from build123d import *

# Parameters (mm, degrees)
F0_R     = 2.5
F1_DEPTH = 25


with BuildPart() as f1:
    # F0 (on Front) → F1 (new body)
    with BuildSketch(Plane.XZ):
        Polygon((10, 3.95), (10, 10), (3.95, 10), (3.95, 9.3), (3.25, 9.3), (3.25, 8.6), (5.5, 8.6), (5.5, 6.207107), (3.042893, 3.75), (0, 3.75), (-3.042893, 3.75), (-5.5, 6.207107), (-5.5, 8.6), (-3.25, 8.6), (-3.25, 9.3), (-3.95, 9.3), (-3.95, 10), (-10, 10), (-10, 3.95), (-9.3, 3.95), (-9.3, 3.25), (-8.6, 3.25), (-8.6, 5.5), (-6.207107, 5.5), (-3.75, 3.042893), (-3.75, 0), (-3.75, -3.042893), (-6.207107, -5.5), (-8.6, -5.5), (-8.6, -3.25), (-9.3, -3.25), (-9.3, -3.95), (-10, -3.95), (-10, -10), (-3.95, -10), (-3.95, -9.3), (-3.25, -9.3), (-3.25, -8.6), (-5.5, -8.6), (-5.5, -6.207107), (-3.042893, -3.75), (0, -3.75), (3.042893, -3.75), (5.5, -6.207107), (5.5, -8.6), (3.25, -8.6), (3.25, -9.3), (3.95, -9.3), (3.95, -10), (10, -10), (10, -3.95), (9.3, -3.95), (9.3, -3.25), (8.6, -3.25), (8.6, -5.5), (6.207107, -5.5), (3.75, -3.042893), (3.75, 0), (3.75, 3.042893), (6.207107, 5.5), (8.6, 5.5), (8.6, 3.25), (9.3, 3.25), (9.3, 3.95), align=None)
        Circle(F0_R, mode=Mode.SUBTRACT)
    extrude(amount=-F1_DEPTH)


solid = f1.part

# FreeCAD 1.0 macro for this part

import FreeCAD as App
import Part
import Sketcher
from FreeCAD import Vector

doc = App.newDocument("Part")
body = doc.addObject("PartDesign::Body", "Body")

# Sketch on XZ plane
sketch1 = body.newObject("Sketcher::SketchObject", "Sketch")
sketch1.AttachmentSupport = (doc.getObject("XZ_Plane"), [""])
sketch1.MapMode = "FlatFace"
sketch1.addGeometry(Part.LineSegment(Vector(10, 4, 0), Vector(10, 10, 0)), False)
sketch1.addGeometry(Part.LineSegment(Vector(10, 10, 0), Vector(4, 10, 0)), False)
sketch1.addGeometry(Part.LineSegment(Vector(4, 10, 0), Vector(4, 9.3, 0)), False)
sketch1.addGeometry(Part.LineSegment(Vector(4, 9.3, 0), Vector(3.2, 9.3, 0)), False)
sketch1.addGeometry(Part.LineSegment(Vector(3.2, 9.3, 0), Vector(3.2, 8.6, 0)), False)
sketch1.addGeometry(Part.LineSegment(Vector(3.2, 8.6, 0), Vector(5.5, 8.6, 0)), False)
sketch1.addGeometry(Part.LineSegment(Vector(5.5, 8.6, 0), Vector(5.5, 6.2, 0)), False)
sketch1.addGeometry(Part.LineSegment(Vector(5.5, 6.2, 0), Vector(3, 3.8, 0)), False)
sketch1.addGeometry(Part.LineSegment(Vector(3, 3.8, 0), Vector(-3, 3.8, 0)), False)
sketch1.addGeometry(Part.LineSegment(Vector(-3, 3.8, 0), Vector(-5.5, 6.2, 0)), False)
sketch1.addGeometry(Part.LineSegment(Vector(-5.5, 6.2, 0), Vector(-5.5, 8.6, 0)), False)
sketch1.addGeometry(Part.LineSegment(Vector(-5.5, 8.6, 0), Vector(-3.2, 8.6, 0)), False)
sketch1.addGeometry(Part.LineSegment(Vector(-3.2, 8.6, 0), Vector(-3.2, 9.3, 0)), False)
sketch1.addGeometry(Part.LineSegment(Vector(-3.2, 9.3, 0), Vector(-4, 9.3, 0)), False)
sketch1.addGeometry(Part.LineSegment(Vector(-4, 9.3, 0), Vector(-4, 10, 0)), False)
sketch1.addGeometry(Part.LineSegment(Vector(-4, 10, 0), Vector(-10, 10, 0)), False)
sketch1.addGeometry(Part.LineSegment(Vector(-10, 10, 0), Vector(-10, 4, 0)), False)
sketch1.addGeometry(Part.LineSegment(Vector(-10, 4, 0), Vector(-9.3, 4, 0)), False)
sketch1.addGeometry(Part.LineSegment(Vector(-9.3, 4, 0), Vector(-9.3, 3.2, 0)), False)
sketch1.addGeometry(Part.LineSegment(Vector(-9.3, 3.2, 0), Vector(-8.6, 3.2, 0)), False)
sketch1.addGeometry(Part.LineSegment(Vector(-8.6, 3.2, 0), Vector(-8.6, 5.5, 0)), False)
sketch1.addGeometry(Part.LineSegment(Vector(-8.6, 5.5, 0), Vector(-6.2, 5.5, 0)), False)
sketch1.addGeometry(Part.LineSegment(Vector(-6.2, 5.5, 0), Vector(-3.8, 3, 0)), False)
sketch1.addGeometry(Part.LineSegment(Vector(-3.8, 3, 0), Vector(-3.8, -3, 0)), False)
sketch1.addGeometry(Part.LineSegment(Vector(-3.8, -3, 0), Vector(-6.2, -5.5, 0)), False)
sketch1.addGeometry(Part.LineSegment(Vector(-6.2, -5.5, 0), Vector(-8.6, -5.5, 0)), False)
sketch1.addGeometry(Part.LineSegment(Vector(-8.6, -5.5, 0), Vector(-8.6, -3.2, 0)), False)
sketch1.addGeometry(Part.LineSegment(Vector(-8.6, -3.2, 0), Vector(-9.3, -3.2, 0)), False)
sketch1.addGeometry(Part.LineSegment(Vector(-9.3, -3.2, 0), Vector(-9.3, -4, 0)), False)
sketch1.addGeometry(Part.LineSegment(Vector(-9.3, -4, 0), Vector(-10, -4, 0)), False)
sketch1.addGeometry(Part.LineSegment(Vector(-10, -4, 0), Vector(-10, -10, 0)), False)
sketch1.addGeometry(Part.LineSegment(Vector(-10, -10, 0), Vector(-4, -10, 0)), False)
sketch1.addGeometry(Part.LineSegment(Vector(-4, -10, 0), Vector(-4, -9.3, 0)), False)
sketch1.addGeometry(Part.LineSegment(Vector(-4, -9.3, 0), Vector(-3.2, -9.3, 0)), False)
sketch1.addGeometry(Part.LineSegment(Vector(-3.2, -9.3, 0), Vector(-3.2, -8.6, 0)), False)
sketch1.addGeometry(Part.LineSegment(Vector(-3.2, -8.6, 0), Vector(-5.5, -8.6, 0)), False)
sketch1.addGeometry(Part.LineSegment(Vector(-5.5, -8.6, 0), Vector(-5.5, -6.2, 0)), False)
sketch1.addGeometry(Part.LineSegment(Vector(-5.5, -6.2, 0), Vector(-3, -3.8, 0)), False)
sketch1.addGeometry(Part.LineSegment(Vector(-3, -3.8, 0), Vector(3, -3.8, 0)), False)
sketch1.addGeometry(Part.LineSegment(Vector(3, -3.8, 0), Vector(5.5, -6.2, 0)), False)
sketch1.addGeometry(Part.LineSegment(Vector(5.5, -6.2, 0), Vector(5.5, -8.6, 0)), False)
sketch1.addGeometry(Part.LineSegment(Vector(5.5, -8.6, 0), Vector(3.2, -8.6, 0)), False)
sketch1.addGeometry(Part.LineSegment(Vector(3.2, -8.6, 0), Vector(3.2, -9.3, 0)), False)
sketch1.addGeometry(Part.LineSegment(Vector(3.2, -9.3, 0), Vector(4, -9.3, 0)), False)
sketch1.addGeometry(Part.LineSegment(Vector(4, -9.3, 0), Vector(4, -10, 0)), False)
sketch1.addGeometry(Part.LineSegment(Vector(4, -10, 0), Vector(10, -10, 0)), False)
sketch1.addGeometry(Part.LineSegment(Vector(10, -10, 0), Vector(10, -4, 0)), False)
sketch1.addGeometry(Part.LineSegment(Vector(10, -4, 0), Vector(9.3, -4, 0)), False)
sketch1.addGeometry(Part.LineSegment(Vector(9.3, -4, 0), Vector(9.3, -3.2, 0)), False)
sketch1.addGeometry(Part.LineSegment(Vector(9.3, -3.2, 0), Vector(8.6, -3.2, 0)), False)
sketch1.addGeometry(Part.LineSegment(Vector(8.6, -3.2, 0), Vector(8.6, -5.5, 0)), False)
sketch1.addGeometry(Part.LineSegment(Vector(8.6, -5.5, 0), Vector(6.2, -5.5, 0)), False)
sketch1.addGeometry(Part.LineSegment(Vector(6.2, -5.5, 0), Vector(3.8, -3, 0)), False)
sketch1.addGeometry(Part.LineSegment(Vector(3.8, -3, 0), Vector(3.8, 3, 0)), False)
sketch1.addGeometry(Part.LineSegment(Vector(3.8, 3, 0), Vector(6.2, 5.5, 0)), False)
sketch1.addGeometry(Part.LineSegment(Vector(6.2, 5.5, 0), Vector(8.6, 5.5, 0)), False)
sketch1.addGeometry(Part.LineSegment(Vector(8.6, 5.5, 0), Vector(8.6, 3.2, 0)), False)
sketch1.addGeometry(Part.LineSegment(Vector(8.6, 3.2, 0), Vector(9.3, 3.2, 0)), False)
sketch1.addGeometry(Part.LineSegment(Vector(9.3, 3.2, 0), Vector(9.3, 4, 0)), False)
sketch1.addGeometry(Part.LineSegment(Vector(9.3, 4, 0), Vector(10, 4, 0)), False)
sketch1.addGeometry(Part.Circle(Vector(0, 0, 0), Vector(0, 0, 1), 2.5), False)
sketch1.addConstraint(Sketcher.Constraint("Coincident", 0, 2, 1, 1))
sketch1.addConstraint(Sketcher.Constraint("Coincident", 1, 2, 2, 1))
sketch1.addConstraint(Sketcher.Constraint("Coincident", 2, 2, 3, 1))
sketch1.addConstraint(Sketcher.Constraint("Coincident", 3, 2, 4, 1))
sketch1.addConstraint(Sketcher.Constraint("Coincident", 4, 2, 5, 1))
sketch1.addConstraint(Sketcher.Constraint("Coincident", 5, 2, 6, 1))
sketch1.addConstraint(Sketcher.Constraint("Coincident", 6, 2, 7, 1))
sketch1.addConstraint(Sketcher.Constraint("Coincident", 7, 2, 8, 1))
sketch1.addConstraint(Sketcher.Constraint("Coincident", 8, 2, 9, 1))
sketch1.addConstraint(Sketcher.Constraint("Coincident", 9, 2, 10, 1))
sketch1.addConstraint(Sketcher.Constraint("Coincident", 10, 2, 11, 1))
sketch1.addConstraint(Sketcher.Constraint("Coincident", 11, 2, 12, 1))
sketch1.addConstraint(Sketcher.Constraint("Coincident", 12, 2, 13, 1))
sketch1.addConstraint(Sketcher.Constraint("Coincident", 13, 2, 14, 1))
sketch1.addConstraint(Sketcher.Constraint("Coincident", 14, 2, 15, 1))
sketch1.addConstraint(Sketcher.Constraint("Coincident", 15, 2, 16, 1))
sketch1.addConstraint(Sketcher.Constraint("Coincident", 16, 2, 17, 1))
sketch1.addConstraint(Sketcher.Constraint("Coincident", 17, 2, 18, 1))
sketch1.addConstraint(Sketcher.Constraint("Coincident", 18, 2, 19, 1))
sketch1.addConstraint(Sketcher.Constraint("Coincident", 19, 2, 20, 1))
sketch1.addConstraint(Sketcher.Constraint("Coincident", 20, 2, 21, 1))
sketch1.addConstraint(Sketcher.Constraint("Coincident", 21, 2, 22, 1))
sketch1.addConstraint(Sketcher.Constraint("Coincident", 22, 2, 23, 1))
sketch1.addConstraint(Sketcher.Constraint("Coincident", 23, 2, 24, 1))
sketch1.addConstraint(Sketcher.Constraint("Coincident", 24, 2, 25, 1))
sketch1.addConstraint(Sketcher.Constraint("Coincident", 25, 2, 26, 1))
sketch1.addConstraint(Sketcher.Constraint("Coincident", 26, 2, 27, 1))
sketch1.addConstraint(Sketcher.Constraint("Coincident", 27, 2, 28, 1))
sketch1.addConstraint(Sketcher.Constraint("Coincident", 28, 2, 29, 1))
sketch1.addConstraint(Sketcher.Constraint("Coincident", 29, 2, 30, 1))
sketch1.addConstraint(Sketcher.Constraint("Coincident", 30, 2, 31, 1))
sketch1.addConstraint(Sketcher.Constraint("Coincident", 31, 2, 32, 1))
sketch1.addConstraint(Sketcher.Constraint("Coincident", 32, 2, 33, 1))
sketch1.addConstraint(Sketcher.Constraint("Coincident", 33, 2, 34, 1))
sketch1.addConstraint(Sketcher.Constraint("Coincident", 34, 2, 35, 1))
sketch1.addConstraint(Sketcher.Constraint("Coincident", 35, 2, 36, 1))
sketch1.addConstraint(Sketcher.Constraint("Coincident", 36, 2, 37, 1))
sketch1.addConstraint(Sketcher.Constraint("Coincident", 37, 2, 38, 1))
sketch1.addConstraint(Sketcher.Constraint("Coincident", 38, 2, 39, 1))
sketch1.addConstraint(Sketcher.Constraint("Coincident", 39, 2, 40, 1))
sketch1.addConstraint(Sketcher.Constraint("Coincident", 40, 2, 41, 1))
sketch1.addConstraint(Sketcher.Constraint("Coincident", 41, 2, 42, 1))
sketch1.addConstraint(Sketcher.Constraint("Coincident", 42, 2, 43, 1))
sketch1.addConstraint(Sketcher.Constraint("Coincident", 43, 2, 44, 1))
sketch1.addConstraint(Sketcher.Constraint("Coincident", 44, 2, 45, 1))
sketch1.addConstraint(Sketcher.Constraint("Coincident", 45, 2, 46, 1))
sketch1.addConstraint(Sketcher.Constraint("Coincident", 46, 2, 47, 1))
sketch1.addConstraint(Sketcher.Constraint("Coincident", 47, 2, 48, 1))
sketch1.addConstraint(Sketcher.Constraint("Coincident", 48, 2, 49, 1))
sketch1.addConstraint(Sketcher.Constraint("Coincident", 49, 2, 50, 1))
sketch1.addConstraint(Sketcher.Constraint("Coincident", 50, 2, 51, 1))
sketch1.addConstraint(Sketcher.Constraint("Coincident", 51, 2, 52, 1))
sketch1.addConstraint(Sketcher.Constraint("Coincident", 52, 2, 53, 1))
sketch1.addConstraint(Sketcher.Constraint("Coincident", 53, 2, 54, 1))
sketch1.addConstraint(Sketcher.Constraint("Coincident", 54, 2, 55, 1))
sketch1.addConstraint(Sketcher.Constraint("Coincident", 55, 2, 56, 1))
sketch1.addConstraint(Sketcher.Constraint("Coincident", 56, 2, 57, 1))
sketch1.addConstraint(Sketcher.Constraint("Coincident", 57, 2, 58, 1))
sketch1.addConstraint(Sketcher.Constraint("Coincident", 58, 2, 59, 1))
sketch1.addConstraint(Sketcher.Constraint("Coincident", 59, 2, 0, 1))
sketch1.addConstraint(Sketcher.Constraint("Vertical", 0))
sketch1.addConstraint(Sketcher.Constraint("Horizontal", 1))
sketch1.addConstraint(Sketcher.Constraint("Vertical", 2))
sketch1.addConstraint(Sketcher.Constraint("Horizontal", 3))
sketch1.addConstraint(Sketcher.Constraint("Vertical", 4))
sketch1.addConstraint(Sketcher.Constraint("Horizontal", 5))
sketch1.addConstraint(Sketcher.Constraint("Vertical", 6))
sketch1.addConstraint(Sketcher.Constraint("Horizontal", 8))
sketch1.addConstraint(Sketcher.Constraint("Vertical", 10))
sketch1.addConstraint(Sketcher.Constraint("Horizontal", 11))
sketch1.addConstraint(Sketcher.Constraint("Vertical", 12))
sketch1.addConstraint(Sketcher.Constraint("Horizontal", 13))
sketch1.addConstraint(Sketcher.Constraint("Vertical", 14))
sketch1.addConstraint(Sketcher.Constraint("Horizontal", 15))
sketch1.addConstraint(Sketcher.Constraint("Vertical", 16))
sketch1.addConstraint(Sketcher.Constraint("Horizontal", 17))
sketch1.addConstraint(Sketcher.Constraint("Vertical", 18))
sketch1.addConstraint(Sketcher.Constraint("Horizontal", 19))
sketch1.addConstraint(Sketcher.Constraint("Vertical", 20))
sketch1.addConstraint(Sketcher.Constraint("Horizontal", 21))
sketch1.addConstraint(Sketcher.Constraint("Vertical", 23))
sketch1.addConstraint(Sketcher.Constraint("Horizontal", 25))
sketch1.addConstraint(Sketcher.Constraint("Vertical", 26))
sketch1.addConstraint(Sketcher.Constraint("Horizontal", 27))
sketch1.addConstraint(Sketcher.Constraint("Vertical", 28))
sketch1.addConstraint(Sketcher.Constraint("Horizontal", 29))
sketch1.addConstraint(Sketcher.Constraint("Vertical", 30))
sketch1.addConstraint(Sketcher.Constraint("Horizontal", 31))
sketch1.addConstraint(Sketcher.Constraint("Vertical", 32))
sketch1.addConstraint(Sketcher.Constraint("Horizontal", 33))
sketch1.addConstraint(Sketcher.Constraint("Vertical", 34))
sketch1.addConstraint(Sketcher.Constraint("Horizontal", 35))
sketch1.addConstraint(Sketcher.Constraint("Vertical", 36))
sketch1.addConstraint(Sketcher.Constraint("Horizontal", 38))
sketch1.addConstraint(Sketcher.Constraint("Vertical", 40))
sketch1.addConstraint(Sketcher.Constraint("Horizontal", 41))
sketch1.addConstraint(Sketcher.Constraint("Vertical", 42))
sketch1.addConstraint(Sketcher.Constraint("Horizontal", 43))
sketch1.addConstraint(Sketcher.Constraint("Vertical", 44))
sketch1.addConstraint(Sketcher.Constraint("Horizontal", 45))
sketch1.addConstraint(Sketcher.Constraint("Vertical", 46))
sketch1.addConstraint(Sketcher.Constraint("Horizontal", 47))
sketch1.addConstraint(Sketcher.Constraint("Vertical", 48))
sketch1.addConstraint(Sketcher.Constraint("Horizontal", 49))
sketch1.addConstraint(Sketcher.Constraint("Vertical", 50))
sketch1.addConstraint(Sketcher.Constraint("Horizontal", 51))
sketch1.addConstraint(Sketcher.Constraint("Vertical", 53))
sketch1.addConstraint(Sketcher.Constraint("Horizontal", 55))
sketch1.addConstraint(Sketcher.Constraint("Vertical", 56))
sketch1.addConstraint(Sketcher.Constraint("Horizontal", 57))
sketch1.addConstraint(Sketcher.Constraint("Vertical", 58))
sketch1.addConstraint(Sketcher.Constraint("Horizontal", 59))
sketch1.addConstraint(Sketcher.Constraint("Coincident", 60, 3, -1, 1))
sketch1.addConstraint(Sketcher.Constraint("Symmetric", 0, 2, 30, 2, -1, 1))
sketch1.addConstraint(Sketcher.Constraint("Symmetric", 2, 2, 32, 2, -1, 1))
sketch1.addConstraint(Sketcher.Constraint("Symmetric", 4, 2, 34, 2, -1, 1))
sketch1.addConstraint(Sketcher.Constraint("Symmetric", 6, 2, 36, 2, -1, 1))
sketch1.addConstraint(Sketcher.Constraint("Symmetric", 7, 2, 37, 2, -1, 1))
sketch1.addConstraint(Sketcher.Constraint("Symmetric", 9, 2, 39, 2, -1, 1))
sketch1.addConstraint(Sketcher.Constraint("Symmetric", 11, 2, 41, 2, -1, 1))
sketch1.addConstraint(Sketcher.Constraint("Symmetric", 13, 2, 43, 2, -1, 1))
sketch1.addConstraint(Sketcher.Constraint("Symmetric", 15, 2, 45, 2, -1, 1))
sketch1.addConstraint(Sketcher.Constraint("Symmetric", 17, 2, 47, 2, -1, 1))
sketch1.addConstraint(Sketcher.Constraint("Symmetric", 19, 2, 49, 2, -1, 1))
sketch1.addConstraint(Sketcher.Constraint("Symmetric", 21, 2, 51, 2, -1, 1))
sketch1.addConstraint(Sketcher.Constraint("Symmetric", 22, 2, 52, 2, -1, 1))
sketch1.addConstraint(Sketcher.Constraint("Symmetric", 24, 2, 54, 2, -1, 1))
sketch1.addConstraint(Sketcher.Constraint("Symmetric", 26, 2, 56, 2, -1, 1))
sketch1.addConstraint(Sketcher.Constraint("Symmetric", 28, 2, 58, 2, -1, 1))
sketch1.addConstraint(Sketcher.Constraint("Symmetric", 6, 2, 9, 2, -2))
sketch1.addConstraint(Sketcher.Constraint("Symmetric", 4, 2, 11, 2, -2))
sketch1.addConstraint(Sketcher.Constraint("Symmetric", 2, 2, 13, 2, -2))
sketch1.addConstraint(Sketcher.Constraint("Symmetric", 0, 2, 15, 2, -2))
sketch1.addConstraint(Sketcher.Constraint("Symmetric", 28, 2, 47, 2, -2))
sketch1.addConstraint(Sketcher.Constraint("Symmetric", 26, 2, 49, 2, -2))
sketch1.addConstraint(Sketcher.Constraint("Symmetric", 24, 2, 51, 2, -2))
sketch1.addConstraint(Sketcher.Constraint("Perpendicular", 7, 9))
sketch1.addConstraint(Sketcher.Constraint("Parallel", 9, 22))
sketch1.addConstraint(Sketcher.Constraint("Perpendicular", 22, 24))
sketch1.addConstraint(Sketcher.Constraint("Perpendicular", 37, 39))
sketch1.addConstraint(Sketcher.Constraint("Perpendicular", 52, 54))
sketch1.addConstraint(Sketcher.Constraint("Horizontal", 23, 2, 52, 2))
sketch1.addConstraint(Sketcher.Constraint("Equal", 13, 17))
sketch1.addConstraint(Sketcher.Constraint("Equal", 17, 19))
sketch1.addConstraint(Sketcher.Constraint("Equal", 45, 0))
sketch1.addConstraint(Sketcher.Constraint("Equal", 59, 2))
sketch1.addConstraint(Sketcher.Constraint("Equal", 2, 4))
sketch1.addConstraint(Sketcher.Constraint("Equal", 55, 6))
sketch1.addConstraint(Sketcher.Constraint("Equal", 14, 18))
sketch1.addConstraint(Sketcher.Constraint("Equal", 41, 20))
sketch1.addConstraint(Sketcher.Constraint("Equal", 38, 23))
sketch1.addConstraint(Sketcher.Constraint("Equal", 9, 22))
sketch1.addConstraint(Sketcher.Constraint("Diameter", 60, 5.0))
sketch1.addConstraint(Sketcher.Constraint("DistanceX", 3, 2, 3, 1, 0.7))
sketch1.addConstraint(Sketcher.Constraint("DistanceX", -1, 1, 0, 2, 10.0))
sketch1.addConstraint(Sketcher.Constraint("DistanceX", 1, 2, 1, 1, 6.05))
sketch1.addConstraint(Sketcher.Constraint("DistanceX", 5, 1, 5, 2, 2.25))
sketch1.addConstraint(Sketcher.Constraint("DistanceY", -1, 1, 7, 2, 3.75))
sketch1.addConstraint(Sketcher.Constraint("DistanceX", 8, 2, 8, 1, 6.085786))
pad1 = body.newObject("PartDesign::Pad", "Pad")
pad1.Profile = sketch1
pad1.Length = 25
pad1.Reversed = True

doc.recompute()
